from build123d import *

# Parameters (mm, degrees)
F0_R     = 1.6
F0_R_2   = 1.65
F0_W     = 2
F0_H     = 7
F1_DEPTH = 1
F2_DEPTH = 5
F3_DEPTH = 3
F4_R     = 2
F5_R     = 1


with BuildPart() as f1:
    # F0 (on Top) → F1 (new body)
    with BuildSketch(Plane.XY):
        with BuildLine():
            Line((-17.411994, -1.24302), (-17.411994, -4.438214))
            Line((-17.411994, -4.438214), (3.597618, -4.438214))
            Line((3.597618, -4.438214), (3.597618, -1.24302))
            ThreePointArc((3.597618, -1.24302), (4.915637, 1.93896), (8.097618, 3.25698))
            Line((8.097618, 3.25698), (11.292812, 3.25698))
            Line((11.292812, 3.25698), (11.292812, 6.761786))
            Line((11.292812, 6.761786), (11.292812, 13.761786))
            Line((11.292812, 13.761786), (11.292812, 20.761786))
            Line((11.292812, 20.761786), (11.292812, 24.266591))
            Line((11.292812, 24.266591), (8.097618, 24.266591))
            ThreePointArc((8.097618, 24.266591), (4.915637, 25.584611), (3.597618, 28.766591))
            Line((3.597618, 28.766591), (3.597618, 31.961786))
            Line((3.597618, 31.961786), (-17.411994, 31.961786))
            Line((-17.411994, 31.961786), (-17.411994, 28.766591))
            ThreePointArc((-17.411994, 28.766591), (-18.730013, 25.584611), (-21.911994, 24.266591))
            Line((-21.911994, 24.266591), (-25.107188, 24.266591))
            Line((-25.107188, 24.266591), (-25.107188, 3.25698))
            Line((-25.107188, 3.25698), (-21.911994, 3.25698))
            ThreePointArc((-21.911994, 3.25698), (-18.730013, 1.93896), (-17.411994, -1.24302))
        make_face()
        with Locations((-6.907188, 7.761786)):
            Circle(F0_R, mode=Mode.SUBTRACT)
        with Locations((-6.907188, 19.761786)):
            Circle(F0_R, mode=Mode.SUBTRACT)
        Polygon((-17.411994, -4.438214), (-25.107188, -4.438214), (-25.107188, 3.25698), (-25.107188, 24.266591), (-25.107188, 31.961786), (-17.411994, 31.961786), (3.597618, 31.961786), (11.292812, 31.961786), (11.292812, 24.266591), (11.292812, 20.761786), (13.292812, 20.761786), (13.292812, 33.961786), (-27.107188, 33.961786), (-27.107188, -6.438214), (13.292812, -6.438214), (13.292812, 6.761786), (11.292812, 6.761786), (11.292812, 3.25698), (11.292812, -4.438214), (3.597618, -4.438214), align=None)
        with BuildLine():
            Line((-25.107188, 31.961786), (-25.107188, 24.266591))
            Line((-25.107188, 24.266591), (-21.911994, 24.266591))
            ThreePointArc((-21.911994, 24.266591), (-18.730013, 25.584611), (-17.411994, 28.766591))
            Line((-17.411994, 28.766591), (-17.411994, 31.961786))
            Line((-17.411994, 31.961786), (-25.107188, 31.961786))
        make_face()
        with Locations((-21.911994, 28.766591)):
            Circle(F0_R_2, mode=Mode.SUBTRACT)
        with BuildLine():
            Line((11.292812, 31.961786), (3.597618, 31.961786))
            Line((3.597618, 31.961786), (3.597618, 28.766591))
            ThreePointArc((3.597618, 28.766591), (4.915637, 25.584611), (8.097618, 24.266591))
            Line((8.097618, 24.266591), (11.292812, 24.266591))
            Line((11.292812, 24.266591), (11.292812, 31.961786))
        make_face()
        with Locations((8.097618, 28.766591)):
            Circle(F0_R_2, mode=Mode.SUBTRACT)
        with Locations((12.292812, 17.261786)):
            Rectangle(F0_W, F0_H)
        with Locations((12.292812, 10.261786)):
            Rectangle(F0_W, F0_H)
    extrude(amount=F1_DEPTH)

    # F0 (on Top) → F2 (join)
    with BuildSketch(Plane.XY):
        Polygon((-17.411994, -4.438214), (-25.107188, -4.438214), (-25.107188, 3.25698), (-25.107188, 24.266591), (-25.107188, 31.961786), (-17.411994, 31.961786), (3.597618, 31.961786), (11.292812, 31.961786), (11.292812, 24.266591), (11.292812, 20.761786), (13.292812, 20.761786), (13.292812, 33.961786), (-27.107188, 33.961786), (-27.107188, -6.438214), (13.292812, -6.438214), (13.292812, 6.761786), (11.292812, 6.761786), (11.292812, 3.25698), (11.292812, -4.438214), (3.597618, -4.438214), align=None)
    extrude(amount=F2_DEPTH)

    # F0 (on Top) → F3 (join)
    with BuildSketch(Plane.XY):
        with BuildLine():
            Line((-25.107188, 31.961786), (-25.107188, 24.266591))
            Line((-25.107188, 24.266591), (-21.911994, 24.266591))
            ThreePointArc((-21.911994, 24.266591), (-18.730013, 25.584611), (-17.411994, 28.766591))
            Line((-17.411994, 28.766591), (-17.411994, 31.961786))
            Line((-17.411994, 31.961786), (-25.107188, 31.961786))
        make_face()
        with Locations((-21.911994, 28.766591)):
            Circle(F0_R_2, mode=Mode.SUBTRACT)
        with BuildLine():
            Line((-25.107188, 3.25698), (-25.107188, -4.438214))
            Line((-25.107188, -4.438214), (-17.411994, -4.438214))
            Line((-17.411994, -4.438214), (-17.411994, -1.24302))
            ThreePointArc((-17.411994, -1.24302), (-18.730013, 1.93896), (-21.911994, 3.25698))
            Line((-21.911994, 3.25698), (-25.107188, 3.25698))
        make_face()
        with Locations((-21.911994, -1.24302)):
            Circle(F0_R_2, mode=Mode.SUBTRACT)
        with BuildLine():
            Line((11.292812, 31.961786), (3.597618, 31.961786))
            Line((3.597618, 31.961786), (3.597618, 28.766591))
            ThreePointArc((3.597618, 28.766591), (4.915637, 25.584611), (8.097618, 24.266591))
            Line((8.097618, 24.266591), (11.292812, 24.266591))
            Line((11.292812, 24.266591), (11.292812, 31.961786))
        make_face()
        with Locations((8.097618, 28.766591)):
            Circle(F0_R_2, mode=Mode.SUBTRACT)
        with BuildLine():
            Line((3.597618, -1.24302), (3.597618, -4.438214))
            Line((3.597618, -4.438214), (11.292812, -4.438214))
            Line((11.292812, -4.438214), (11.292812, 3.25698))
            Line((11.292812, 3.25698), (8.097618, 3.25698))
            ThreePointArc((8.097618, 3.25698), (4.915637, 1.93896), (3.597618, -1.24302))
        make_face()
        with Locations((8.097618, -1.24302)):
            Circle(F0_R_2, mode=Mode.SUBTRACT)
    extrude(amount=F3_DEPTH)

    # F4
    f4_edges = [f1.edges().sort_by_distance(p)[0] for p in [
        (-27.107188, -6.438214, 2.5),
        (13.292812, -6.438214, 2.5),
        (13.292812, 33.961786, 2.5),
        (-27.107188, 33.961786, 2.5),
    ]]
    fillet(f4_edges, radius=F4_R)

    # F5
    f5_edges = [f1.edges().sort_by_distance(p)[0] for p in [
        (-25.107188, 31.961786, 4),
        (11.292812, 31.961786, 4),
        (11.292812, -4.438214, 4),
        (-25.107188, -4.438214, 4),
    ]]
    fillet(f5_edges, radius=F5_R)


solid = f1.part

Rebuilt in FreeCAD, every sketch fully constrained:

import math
import FreeCAD as App
import Part
import Sketcher

V = App.Vector
Q = App.Units.Quantity


def edges_at(feature, points):
    """Names of the edges that pass closest to the given points."""
    edges = feature.Shape.Edges
    near = lambda p: min(range(len(edges)), key=lambda i: edges[i].distToShape(Part.Vertex(*p))[0])
    return sorted({f"Edge{near(p) + 1}" for p in points})


def add_polygon(sketch, points):
    """Adds a closed chain of lines whose ends are joined by coincident constraints."""
    first, n = sketch.GeometryCount, len(points)
    for a, b in zip(points, points[1:] + points[:1]):
        sketch.addGeometry(Part.LineSegment(App.Vector(*a, 0), App.Vector(*b, 0)), False)
    for i in range(n):
        sketch.addConstraint(Sketcher.Constraint("Coincident", first + i, 2, first + (i + 1) % n, 1))

doc = App.newDocument("Part")
body = doc.addObject("PartDesign::Body", "Body")

# Sketch on XY plane
sketch1 = doc.addObject("Sketcher::SketchObject", "Sketch")
body.addObject(sketch1)
sketch1.AttachmentSupport = (doc.XY_Plane, [""])
sketch1.MapMode = "FlatFace"
add_polygon(sketch1, [(13.3, 34), (-27.1, 34), (-27.1, -6.4), (13.3, -6.4)])  # lines 0-3
sketch1.addGeometry(Part.ArcOfCircle(Part.Circle(V(-21.9, -1.2, 0), V(0, 0, 1), 4.5), math.radians(0), math.radians(90)), False)  # 4
sketch1.addGeometry(Part.LineSegment(V(-17.4, -1.2, 0), V(-17.4, -4.4, 0)), False)  # 5
sketch1.addGeometry(Part.LineSegment(V(-17.4, -4.4, 0), V(-25.1, -4.4, 0)), False)  # 6
sketch1.addGeometry(Part.LineSegment(V(-25.1, -4.4, 0), V(-25.1, 3.3, 0)), False)  # 7
sketch1.addGeometry(Part.LineSegment(V(-25.1, 3.3, 0), V(-21.9, 3.3, 0)), False)  # 8
sketch1.addGeometry(Part.LineSegment(V(8.1, 3.3, 0), V(11.3, 3.3, 0)), False)  # 9
sketch1.addGeometry(Part.LineSegment(V(11.3, 3.3, 0), V(11.3, -4.4, 0)), False)  # 10
sketch1.addGeometry(Part.LineSegment(V(11.3, -4.4, 0), V(3.6, -4.4, 0)), False)  # 11
sketch1.addGeometry(Part.LineSegment(V(3.6, -4.4, 0), V(3.6, -1.2, 0)), False)  # 12
sketch1.addGeometry(Part.ArcOfCircle(Part.Circle(V(8.1, -1.2, 0), V(0, 0, 1), 4.5), math.radians(90), math.radians(180)), False)  # 13
sketch1.addGeometry(Part.Circle(V(-6.9, 7.8, 0), V(0, 0, 1), 1.6), False)  # 14
sketch1.addGeometry(Part.Circle(V(-21.9, 28.8, 0), V(0, 0, 1), 1.6), False)  # 15
sketch1.addGeometry(Part.Circle(V(-6.9, 19.8, 0), V(0, 0, 1), 1.6), False)  # 16
sketch1.addGeometry(Part.Circle(V(8.1, 28.8, 0), V(0, 0, 1), 1.6), False)  # 17
sketch1.addConstraint([
    Sketcher.Constraint("Tangent", 4, 1, 5, 1),
    Sketcher.Constraint("Coincident", 5, 2, 6, 1),
    Sketcher.Constraint("Coincident", 6, 2, 7, 1),
    Sketcher.Constraint("Coincident", 7, 2, 8, 1),
    Sketcher.Constraint("Tangent", 8, 2, 4, 2),
    Sketcher.Constraint("Coincident", 9, 2, 10, 1),
    Sketcher.Constraint("Coincident", 10, 2, 11, 1),
    Sketcher.Constraint("Coincident", 11, 2, 12, 1),
    Sketcher.Constraint("Tangent", 12, 2, 13, 2),
    Sketcher.Constraint("Tangent", 13, 1, 9, 1),
    Sketcher.Constraint("Horizontal", 0),
    Sketcher.Constraint("Vertical", 1),
    Sketcher.Constraint("Horizontal", 2),
    Sketcher.Constraint("Vertical", 3),
    Sketcher.Constraint("Vertical", 5),
    Sketcher.Constraint("Horizontal", 6),
    Sketcher.Constraint("Vertical", 7),
    Sketcher.Constraint("Horizontal", 8),
    Sketcher.Constraint("Horizontal", 9),
    Sketcher.Constraint("Vertical", 10),
    Sketcher.Constraint("Horizontal", 11),
    Sketcher.Constraint("Vertical", 12),
    Sketcher.Constraint("Equal", 4, 13),
    Sketcher.Constraint("Equal", 14, 16),
    Sketcher.Constraint("Equal", 15, 17),
    Sketcher.Constraint("Horizontal", 4, 3, 13, 3),
    Sketcher.Constraint("Horizontal", 15, 3, 17, 3),
    Sketcher.Constraint("Horizontal", 6, 2, 10, 2),
    Sketcher.Constraint("Vertical", 4, 3, 15, 3),
    Sketcher.Constraint("Vertical", 14, 3, 16, 3),
    Sketcher.Constraint("Vertical", 13, 3, 17, 3),
    Sketcher.Constraint("Equal", 8, 9),
    Sketcher.Constraint("Equal", 2, 1),
    Sketcher.Constraint("Equal", 9, 5),
    Sketcher.Constraint("Diameter", 14, Q("3.2 mm")),
    Sketcher.Constraint("Diameter", 15, Q("3.3 mm")),
    Sketcher.Constraint("Radius", 4, Q("4.5 mm")),
    Sketcher.Constraint("DistanceX", 0, 2, 0, 1, Q("40.4 mm")),
    Sketcher.Constraint("DistanceY", 14, 3, 16, 3, Q("12 mm")),
    Sketcher.Constraint("DistanceY", 1, 2, 5, 2, Q("2 mm")),
    Sketcher.Constraint("DistanceX", 1, 2, 6, 2, Q("2 mm")),
    Sketcher.Constraint("DistanceX", 9, 2, 2, 2, Q("2 mm")),
    Sketcher.Constraint("DistanceX", 0, 2, 16, 3, Q("20.2 mm")),
    Sketcher.Constraint("DistanceY", 16, 3, 0, 2, Q("14.2 mm")),
    Sketcher.Constraint("DistanceX", 6, 2, 6, 1, Q("7.695194 mm")),
    Sketcher.Constraint("DistanceY", 4, 3, -1, 1, Q("1.24302 mm")),
    Sketcher.Constraint("DistanceX", -1, 1, 13, 3, Q("8.097618 mm")),
    Sketcher.Constraint("DistanceY", -1, 1, 15, 3, Q("28.766591 mm")),
])
pad1 = doc.addObject("PartDesign::Pad", "Pad")
body.addObject(pad1)
pad1.Profile = sketch1
pad1.Length = 1

# Sketch on XY plane
sketch2 = doc.addObject("Sketcher::SketchObject", "Sketch001")
body.addObject(sketch2)
sketch2.AttachmentSupport = (doc.XY_Plane, [""])
sketch2.MapMode = "FlatFace"
add_polygon(sketch2, [(-25.1, -4.4), (-25.1, 32), (11.3, 32), (11.3, 20.8), (13.3, 20.8), (13.3, 34), (-27.1, 34), (-27.1, -6.4), (13.3, -6.4), (13.3, 6.8), (11.3, 6.8), (11.3, -4.4)])  # lines 0-11
sketch2.addConstraint([
    Sketcher.Constraint("Vertical", 0),
    Sketcher.Constraint("Horizontal", 1),
    Sketcher.Constraint("Vertical", 2),
    Sketcher.Constraint("Horizontal", 3),
    Sketcher.Constraint("Vertical", 4),
    Sketcher.Constraint("Horizontal", 5),
    Sketcher.Constraint("Vertical", 6),
    Sketcher.Constraint("Horizontal", 7),
    Sketcher.Constraint("Vertical", 8),
    Sketcher.Constraint("Horizontal", 9),
    Sketcher.Constraint("Vertical", 10),
    Sketcher.Constraint("Horizontal", 11),
    Sketcher.Constraint("Vertical", 4, 2, 7, 2),
    Sketcher.Constraint("Vertical", 2, 2, 9, 2),
    Sketcher.Constraint("Equal", 11, 0),
    Sketcher.Constraint("Equal", 7, 6),
    Sketcher.Constraint("Equal", 4, 8),
    Sketcher.Constraint("Equal", 2, 10),
    Sketcher.Constraint("DistanceX", 3, 1, 3, 2, Q("2 mm")),
    Sketcher.Constraint("DistanceX", 1, 1, 1, 2, Q("36.4 mm")),
    Sketcher.Constraint("DistanceX", 5, 2, 5, 1, Q("40.4 mm")),
    Sketcher.Constraint("DistanceY", 2, 2, 2, 1, Q("11.2 mm")),
    Sketcher.Constraint("DistanceX", 0, 2, -1, 1, Q("25.107188 mm")),
    Sketcher.Constraint("DistanceY", -1, 1, 0, 2, Q("31.961786 mm")),
])
pad2 = doc.addObject("PartDesign::Pad", "Pad001")
body.addObject(pad2)
pad2.Profile = sketch2
pad2.Length = 5

# Sketch on XY plane
sketch3 = doc.addObject("Sketcher::SketchObject", "Sketch002")
body.addObject(sketch3)
sketch3.AttachmentSupport = (doc.XY_Plane, [""])
sketch3.MapMode = "FlatFace"
sketch3.addGeometry([
    Part.LineSegment(V(-25.1, 32, 0), V(-25.1, 24.3, 0)),  # 0
    Part.LineSegment(V(-25.1, 24.3, 0), V(-21.9, 24.3, 0)),  # 1
    Part.ArcOfCircle(Part.Circle(V(-21.9, 28.8, 0), V(0, 0, 1), 4.5), math.radians(-90), math.radians(0)),  # 2
    Part.LineSegment(V(-17.4, 28.8, 0), V(-17.4, 32, 0)),  # 3
    Part.LineSegment(V(-17.4, 32, 0), V(-25.1, 32, 0)),  # 4
    Part.Circle(V(-21.9, 28.8, 0), V(0, 0, 1), 1.6),  # 5
    Part.LineSegment(V(-25.1, 3.3, 0), V(-25.1, -4.4, 0)),  # 6
    Part.LineSegment(V(-25.1, -4.4, 0), V(-17.4, -4.4, 0)),  # 7
    Part.LineSegment(V(-17.4, -4.4, 0), V(-17.4, -1.2, 0)),  # 8
    Part.ArcOfCircle(Part.Circle(V(-21.9, -1.2, 0), V(0, 0, 1), 4.5), math.radians(0), math.radians(90)),  # 9
    Part.LineSegment(V(-21.9, 3.3, 0), V(-25.1, 3.3, 0)),  # 10
    Part.Circle(V(-21.9, -1.2, 0), V(0, 0, 1), 1.6),  # 11
    Part.LineSegment(V(11.3, 32, 0), V(3.6, 32, 0)),  # 12
    Part.LineSegment(V(3.6, 32, 0), V(3.6, 28.8, 0)),  # 13
    Part.ArcOfCircle(Part.Circle(V(8.1, 28.8, 0), V(0, 0, 1), 4.5), math.radians(-180), math.radians(-90)),  # 14
    Part.LineSegment(V(8.1, 24.3, 0), V(11.3, 24.3, 0)),  # 15
    Part.LineSegment(V(11.3, 24.3, 0), V(11.3, 32, 0)),  # 16
    Part.Circle(V(8.1, 28.8, 0), V(0, 0, 1), 1.6),  # 17
    Part.LineSegment(V(3.6, -1.2, 0), V(3.6, -4.4, 0)),  # 18
    Part.LineSegment(V(3.6, -4.4, 0), V(11.3, -4.4, 0)),  # 19
    Part.LineSegment(V(11.3, -4.4, 0), V(11.3, 3.3, 0)),  # 20
    Part.LineSegment(V(11.3, 3.3, 0), V(8.1, 3.3, 0)),  # 21
    Part.ArcOfCircle(Part.Circle(V(8.1, -1.2, 0), V(0, 0, 1), 4.5), math.radians(90), math.radians(180)),  # 22
    Part.Circle(V(8.1, -1.2, 0), V(0, 0, 1), 1.6),  # 23
], False)
sketch3.addConstraint([
    Sketcher.Constraint("Coincident", 0, 2, 1, 1),
    Sketcher.Constraint("Tangent", 1, 2, 2, 1),
    Sketcher.Constraint("Tangent", 2, 2, 3, 1),
    Sketcher.Constraint("Coincident", 3, 2, 4, 1),
    Sketcher.Constraint("Coincident", 4, 2, 0, 1),
    Sketcher.Constraint("Coincident", 6, 2, 7, 1),
    Sketcher.Constraint("Coincident", 7, 2, 8, 1),
    Sketcher.Constraint("Tangent", 8, 2, 9, 1),
    Sketcher.Constraint("Tangent", 9, 2, 10, 1),
    Sketcher.Constraint("Coincident", 10, 2, 6, 1),
    Sketcher.Constraint("Coincident", 12, 2, 13, 1),
    Sketcher.Constraint("Tangent", 13, 2, 14, 1),
    Sketcher.Constraint("Tangent", 14, 2, 15, 1),
    Sketcher.Constraint("Coincident", 15, 2, 16, 1),
    Sketcher.Constraint("Coincident", 16, 2, 12, 1),
    Sketcher.Constraint("Coincident", 18, 2, 19, 1),
    Sketcher.Constraint("Coincident", 19, 2, 20, 1),
    Sketcher.Constraint("Coincident", 20, 2, 21, 1),
    Sketcher.Constraint("Tangent", 21, 2, 22, 1),
    Sketcher.Constraint("Tangent", 22, 2, 18, 1),
    Sketcher.Constraint("Vertical", 0),
    Sketcher.Constraint("Horizontal", 1),
    Sketcher.Constraint("Vertical", 3),
    Sketcher.Constraint("Horizontal", 4),
    Sketcher.Constraint("Vertical", 6),
    Sketcher.Constraint("Horizontal", 7),
    Sketcher.Constraint("Vertical", 8),
    Sketcher.Constraint("Horizontal", 10),
    Sketcher.Constraint("Horizontal", 12),
    Sketcher.Constraint("Vertical", 13),
    Sketcher.Constraint("Horizontal", 15),
    Sketcher.Constraint("Vertical", 16),
    Sketcher.Constraint("Vertical", 18),
    Sketcher.Constraint("Horizontal", 19),
    Sketcher.Constraint("Vertical", 20),
    Sketcher.Constraint("Horizontal", 21),
    Sketcher.Constraint("Coincident", 5, 3, 2, 3),
    Sketcher.Constraint("Coincident", 11, 3, 9, 3),
    Sketcher.Constraint("Coincident", 17, 3, 14, 3),
    Sketcher.Constraint("Coincident", 23, 3, 22, 3),
    Sketcher.Constraint("Equal", 2, 9),
    Sketcher.Constraint("Equal", 5, 11),
    Sketcher.Constraint("Equal", 9, 14),
    Sketcher.Constraint("Equal", 11, 17),
    Sketcher.Constraint("Equal", 14, 22),
    Sketcher.Constraint("Equal", 17, 23),
    Sketcher.Constraint("Horizontal", 5, 3, 14, 3),
    Sketcher.Constraint("Horizontal", 11, 3, 22, 3),
    Sketcher.Constraint("Horizontal", 4, 2, 12, 2),
    Sketcher.Constraint("Horizontal", 7, 2, 18, 2),
    Sketcher.Constraint("Vertical", 5, 3, 9, 3),
    Sketcher.Constraint("Vertical", 17, 3, 22, 3),
    Sketcher.Constraint("Vertical", 4, 2, 6, 2),
    Sketcher.Constraint("Vertical", 16, 2, 19, 2),
    Sketcher.Constraint("Equal", 7, 12),
    Sketcher.Constraint("Equal", 19, 0),
    Sketcher.Constraint("Equal", 0, 6),
    Sketcher.Constraint("Diameter", 5, Q("3.3 mm")),
    Sketcher.Constraint("Radius", 2, Q("4.5 mm")),
    Sketcher.Constraint("DistanceX", 1, 1, 1, 2, Q("3.195194 mm")),
    Sketcher.Constraint("DistanceY", -1, 1, 2, 3, Q("28.766591 mm")),
    Sketcher.Constraint("DistanceY", 9, 3, -1, 1, Q("1.24302 mm")),
    Sketcher.Constraint("DistanceX", -1, 1, 14, 3, Q("8.097618 mm")),
    Sketcher.Constraint("DistanceX", 0, 2, -1, 1, Q("25.107188 mm")),
])
pad3 = doc.addObject("PartDesign::Pad", "Pad002")
body.addObject(pad3)
pad3.Profile = sketch3
pad3.Length = 3
doc.recompute()

fillet = doc.addObject("PartDesign::Fillet", "Fillet")
body.addObject(fillet)
fillet.Base = (pad3, edges_at(pad3, [
    (-27.107, -6.438, 2.5),
    (13.293, -6.438, 2.5),
    (13.293, 33.962, 2.5),
    (-27.107, 33.962, 2.5),
]))
fillet.Radius = 2
doc.recompute()

fillet2 = doc.addObject("PartDesign::Fillet", "Fillet001")
body.addObject(fillet2)
fillet2.Base = (fillet, edges_at(fillet, [
    (-25.107, 31.962, 4),
    (11.293, 31.962, 4),
    (11.293, -4.438, 4),
    (-25.107, -4.438, 4),
]))
fillet2.Radius = 1

doc.recompute()
